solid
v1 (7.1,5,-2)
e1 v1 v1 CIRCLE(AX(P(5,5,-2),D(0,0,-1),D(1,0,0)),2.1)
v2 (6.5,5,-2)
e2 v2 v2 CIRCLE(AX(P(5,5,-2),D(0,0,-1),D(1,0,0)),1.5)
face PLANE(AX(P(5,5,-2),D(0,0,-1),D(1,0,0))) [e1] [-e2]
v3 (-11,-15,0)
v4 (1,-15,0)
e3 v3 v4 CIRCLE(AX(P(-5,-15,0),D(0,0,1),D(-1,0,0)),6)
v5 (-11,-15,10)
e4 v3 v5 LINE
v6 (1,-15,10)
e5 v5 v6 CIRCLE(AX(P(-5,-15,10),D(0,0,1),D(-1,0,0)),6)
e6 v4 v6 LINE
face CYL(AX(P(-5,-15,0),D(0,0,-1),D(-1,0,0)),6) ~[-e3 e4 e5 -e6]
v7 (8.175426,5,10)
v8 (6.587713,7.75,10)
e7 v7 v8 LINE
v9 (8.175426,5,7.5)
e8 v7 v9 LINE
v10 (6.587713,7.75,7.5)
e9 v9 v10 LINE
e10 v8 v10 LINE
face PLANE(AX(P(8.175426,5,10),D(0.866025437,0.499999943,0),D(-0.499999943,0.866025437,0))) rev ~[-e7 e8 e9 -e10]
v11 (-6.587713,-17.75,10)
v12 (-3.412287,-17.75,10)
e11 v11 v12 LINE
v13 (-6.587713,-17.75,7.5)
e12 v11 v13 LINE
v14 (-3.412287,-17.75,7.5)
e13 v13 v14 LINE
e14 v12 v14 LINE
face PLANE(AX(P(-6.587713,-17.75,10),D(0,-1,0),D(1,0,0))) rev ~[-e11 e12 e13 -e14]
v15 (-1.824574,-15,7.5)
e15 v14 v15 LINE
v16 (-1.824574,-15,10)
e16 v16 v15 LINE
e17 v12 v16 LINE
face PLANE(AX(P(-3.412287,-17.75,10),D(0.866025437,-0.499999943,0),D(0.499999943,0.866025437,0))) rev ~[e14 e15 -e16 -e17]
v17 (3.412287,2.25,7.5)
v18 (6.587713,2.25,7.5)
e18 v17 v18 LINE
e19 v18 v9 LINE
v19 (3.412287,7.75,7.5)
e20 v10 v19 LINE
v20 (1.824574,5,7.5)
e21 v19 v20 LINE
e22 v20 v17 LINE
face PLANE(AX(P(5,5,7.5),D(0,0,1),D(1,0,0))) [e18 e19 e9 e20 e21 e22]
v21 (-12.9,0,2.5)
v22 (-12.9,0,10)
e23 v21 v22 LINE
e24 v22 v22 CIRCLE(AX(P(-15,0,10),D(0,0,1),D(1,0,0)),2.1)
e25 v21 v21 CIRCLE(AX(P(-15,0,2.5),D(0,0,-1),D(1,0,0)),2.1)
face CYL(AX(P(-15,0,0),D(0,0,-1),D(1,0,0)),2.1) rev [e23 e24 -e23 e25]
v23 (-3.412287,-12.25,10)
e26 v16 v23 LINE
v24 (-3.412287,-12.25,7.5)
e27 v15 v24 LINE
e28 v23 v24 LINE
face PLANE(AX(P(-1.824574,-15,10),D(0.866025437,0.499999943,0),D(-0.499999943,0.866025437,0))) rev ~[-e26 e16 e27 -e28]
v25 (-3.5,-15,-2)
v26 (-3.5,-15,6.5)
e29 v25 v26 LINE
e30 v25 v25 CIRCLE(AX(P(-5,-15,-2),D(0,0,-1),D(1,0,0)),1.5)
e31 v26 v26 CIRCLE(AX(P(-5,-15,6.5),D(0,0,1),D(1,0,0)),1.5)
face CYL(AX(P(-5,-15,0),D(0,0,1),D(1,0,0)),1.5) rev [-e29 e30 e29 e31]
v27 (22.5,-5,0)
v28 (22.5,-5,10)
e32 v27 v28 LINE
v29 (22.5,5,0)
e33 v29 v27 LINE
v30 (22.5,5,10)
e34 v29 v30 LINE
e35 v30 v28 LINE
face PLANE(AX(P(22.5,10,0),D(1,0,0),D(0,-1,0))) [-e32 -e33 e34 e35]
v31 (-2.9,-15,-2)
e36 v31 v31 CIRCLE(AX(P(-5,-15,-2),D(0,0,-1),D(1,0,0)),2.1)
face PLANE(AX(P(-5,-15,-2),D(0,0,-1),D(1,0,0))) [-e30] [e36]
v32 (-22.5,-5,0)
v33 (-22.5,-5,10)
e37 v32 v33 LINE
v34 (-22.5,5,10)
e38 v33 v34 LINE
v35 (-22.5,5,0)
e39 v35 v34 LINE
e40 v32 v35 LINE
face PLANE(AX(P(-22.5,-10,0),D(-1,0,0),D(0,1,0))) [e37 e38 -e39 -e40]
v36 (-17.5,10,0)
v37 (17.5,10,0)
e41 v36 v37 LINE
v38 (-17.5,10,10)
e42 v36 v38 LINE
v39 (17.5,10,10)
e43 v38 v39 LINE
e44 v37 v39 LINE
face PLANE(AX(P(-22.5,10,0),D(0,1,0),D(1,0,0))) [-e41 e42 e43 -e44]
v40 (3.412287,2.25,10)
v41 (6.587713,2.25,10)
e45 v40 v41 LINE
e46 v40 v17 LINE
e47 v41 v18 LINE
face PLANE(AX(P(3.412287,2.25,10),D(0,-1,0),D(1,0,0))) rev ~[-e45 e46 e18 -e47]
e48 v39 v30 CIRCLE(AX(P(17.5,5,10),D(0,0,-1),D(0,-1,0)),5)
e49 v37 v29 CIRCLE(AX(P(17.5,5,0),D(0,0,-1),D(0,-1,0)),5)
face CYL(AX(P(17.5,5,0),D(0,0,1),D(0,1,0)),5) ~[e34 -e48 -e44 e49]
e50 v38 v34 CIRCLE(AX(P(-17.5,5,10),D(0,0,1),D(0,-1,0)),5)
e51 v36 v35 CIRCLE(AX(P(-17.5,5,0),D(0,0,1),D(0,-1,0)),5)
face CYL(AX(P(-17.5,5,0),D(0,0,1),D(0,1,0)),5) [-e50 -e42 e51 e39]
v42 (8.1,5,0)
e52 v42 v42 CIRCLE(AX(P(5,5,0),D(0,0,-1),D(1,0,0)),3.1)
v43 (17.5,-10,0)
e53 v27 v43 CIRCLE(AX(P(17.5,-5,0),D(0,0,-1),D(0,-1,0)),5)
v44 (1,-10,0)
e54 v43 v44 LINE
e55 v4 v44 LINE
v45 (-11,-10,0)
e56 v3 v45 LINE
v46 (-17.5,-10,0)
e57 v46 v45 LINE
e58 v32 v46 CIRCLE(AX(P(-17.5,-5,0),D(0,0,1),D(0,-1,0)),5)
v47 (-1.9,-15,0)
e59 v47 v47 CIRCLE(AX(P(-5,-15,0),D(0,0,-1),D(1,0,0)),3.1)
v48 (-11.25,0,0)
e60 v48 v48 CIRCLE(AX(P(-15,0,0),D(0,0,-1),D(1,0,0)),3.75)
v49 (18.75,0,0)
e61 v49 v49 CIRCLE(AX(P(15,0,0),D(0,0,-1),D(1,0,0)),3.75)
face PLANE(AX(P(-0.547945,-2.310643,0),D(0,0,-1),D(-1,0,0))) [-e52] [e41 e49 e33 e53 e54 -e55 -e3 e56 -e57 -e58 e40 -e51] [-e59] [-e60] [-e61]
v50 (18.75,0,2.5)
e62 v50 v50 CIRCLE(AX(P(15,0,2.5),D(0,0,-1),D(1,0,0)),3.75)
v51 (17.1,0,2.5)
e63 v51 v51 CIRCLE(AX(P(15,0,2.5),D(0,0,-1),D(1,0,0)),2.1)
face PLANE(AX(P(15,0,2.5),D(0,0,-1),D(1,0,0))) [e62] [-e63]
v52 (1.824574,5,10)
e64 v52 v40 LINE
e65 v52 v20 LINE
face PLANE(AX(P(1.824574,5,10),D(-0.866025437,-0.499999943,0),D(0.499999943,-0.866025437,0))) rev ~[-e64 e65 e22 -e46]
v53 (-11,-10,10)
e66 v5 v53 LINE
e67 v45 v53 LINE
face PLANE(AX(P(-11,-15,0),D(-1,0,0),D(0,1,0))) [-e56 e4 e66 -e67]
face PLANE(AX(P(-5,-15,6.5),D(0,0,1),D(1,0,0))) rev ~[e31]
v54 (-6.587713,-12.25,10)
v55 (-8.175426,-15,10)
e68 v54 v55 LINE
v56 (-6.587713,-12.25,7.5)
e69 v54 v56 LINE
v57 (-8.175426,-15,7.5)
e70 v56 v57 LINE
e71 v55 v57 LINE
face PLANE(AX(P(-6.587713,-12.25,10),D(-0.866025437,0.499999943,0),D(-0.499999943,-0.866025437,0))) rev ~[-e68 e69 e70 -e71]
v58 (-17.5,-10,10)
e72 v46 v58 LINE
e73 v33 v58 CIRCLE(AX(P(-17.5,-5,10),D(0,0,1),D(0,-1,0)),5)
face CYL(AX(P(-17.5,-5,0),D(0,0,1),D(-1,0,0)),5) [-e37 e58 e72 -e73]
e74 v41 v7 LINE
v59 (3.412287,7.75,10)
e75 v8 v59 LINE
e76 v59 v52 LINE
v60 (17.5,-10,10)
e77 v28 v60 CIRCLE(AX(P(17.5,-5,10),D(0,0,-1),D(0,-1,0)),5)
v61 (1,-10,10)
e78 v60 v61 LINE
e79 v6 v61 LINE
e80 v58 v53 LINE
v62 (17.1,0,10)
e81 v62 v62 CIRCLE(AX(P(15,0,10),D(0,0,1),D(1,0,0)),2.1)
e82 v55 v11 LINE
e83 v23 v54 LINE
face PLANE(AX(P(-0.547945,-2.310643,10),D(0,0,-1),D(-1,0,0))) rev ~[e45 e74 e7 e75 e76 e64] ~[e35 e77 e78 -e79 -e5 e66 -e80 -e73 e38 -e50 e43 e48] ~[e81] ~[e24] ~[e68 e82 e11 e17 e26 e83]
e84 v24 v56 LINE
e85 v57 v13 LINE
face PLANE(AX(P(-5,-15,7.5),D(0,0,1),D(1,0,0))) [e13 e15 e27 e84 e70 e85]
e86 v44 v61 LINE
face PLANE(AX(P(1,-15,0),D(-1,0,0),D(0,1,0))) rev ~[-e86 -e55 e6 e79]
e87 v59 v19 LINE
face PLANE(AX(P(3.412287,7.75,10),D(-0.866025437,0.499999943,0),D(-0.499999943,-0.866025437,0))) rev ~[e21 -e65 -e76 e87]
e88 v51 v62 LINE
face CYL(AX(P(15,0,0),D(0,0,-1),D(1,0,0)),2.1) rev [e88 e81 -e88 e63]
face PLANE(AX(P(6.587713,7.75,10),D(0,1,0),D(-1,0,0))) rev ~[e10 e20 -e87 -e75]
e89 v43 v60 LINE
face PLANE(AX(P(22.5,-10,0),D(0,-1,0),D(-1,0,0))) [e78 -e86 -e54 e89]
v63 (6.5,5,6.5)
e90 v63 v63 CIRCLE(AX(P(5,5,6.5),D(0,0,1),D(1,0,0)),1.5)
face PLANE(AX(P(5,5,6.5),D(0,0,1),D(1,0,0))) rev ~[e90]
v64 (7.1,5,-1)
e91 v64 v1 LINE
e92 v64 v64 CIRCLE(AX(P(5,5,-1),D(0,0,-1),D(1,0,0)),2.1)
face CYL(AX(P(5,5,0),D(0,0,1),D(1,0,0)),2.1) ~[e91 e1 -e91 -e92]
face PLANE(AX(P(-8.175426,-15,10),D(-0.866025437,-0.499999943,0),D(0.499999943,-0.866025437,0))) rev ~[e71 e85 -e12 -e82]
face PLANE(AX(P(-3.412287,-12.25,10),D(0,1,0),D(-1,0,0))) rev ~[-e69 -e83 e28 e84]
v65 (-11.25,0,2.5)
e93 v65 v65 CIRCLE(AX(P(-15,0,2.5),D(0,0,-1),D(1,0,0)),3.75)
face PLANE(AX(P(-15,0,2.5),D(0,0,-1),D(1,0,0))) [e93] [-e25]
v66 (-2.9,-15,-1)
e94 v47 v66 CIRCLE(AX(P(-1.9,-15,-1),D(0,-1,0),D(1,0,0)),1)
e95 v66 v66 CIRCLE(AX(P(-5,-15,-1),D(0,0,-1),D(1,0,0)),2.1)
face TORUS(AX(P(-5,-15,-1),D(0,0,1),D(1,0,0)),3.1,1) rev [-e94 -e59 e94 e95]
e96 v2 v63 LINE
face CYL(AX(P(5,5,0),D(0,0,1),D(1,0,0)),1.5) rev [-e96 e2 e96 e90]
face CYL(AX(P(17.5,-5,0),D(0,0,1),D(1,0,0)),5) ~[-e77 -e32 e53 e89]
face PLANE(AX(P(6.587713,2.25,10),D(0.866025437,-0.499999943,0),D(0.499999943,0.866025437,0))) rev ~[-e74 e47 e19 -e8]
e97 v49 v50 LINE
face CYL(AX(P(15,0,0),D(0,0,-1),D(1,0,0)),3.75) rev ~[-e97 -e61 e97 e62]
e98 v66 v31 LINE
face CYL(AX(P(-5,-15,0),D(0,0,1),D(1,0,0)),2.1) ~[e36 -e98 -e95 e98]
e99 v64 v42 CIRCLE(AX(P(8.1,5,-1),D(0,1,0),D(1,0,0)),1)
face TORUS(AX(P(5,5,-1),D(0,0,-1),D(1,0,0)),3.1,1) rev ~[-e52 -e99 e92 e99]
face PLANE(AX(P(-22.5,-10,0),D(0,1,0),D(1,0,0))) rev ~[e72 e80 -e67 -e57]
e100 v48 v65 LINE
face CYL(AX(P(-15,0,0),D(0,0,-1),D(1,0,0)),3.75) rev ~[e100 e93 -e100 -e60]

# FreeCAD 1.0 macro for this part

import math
import FreeCAD as App
import Part
import Sketcher
Q = App.Units.Quantity


def edges_at(feature, points):
    """Names of the edges that pass closest to the given points."""
    edges = feature.Shape.Edges
    near = lambda p: min(range(len(edges)), key=lambda i: edges[i].distToShape(Part.Vertex(*p))[0])
    return sorted({f"Edge{near(p) + 1}" for p in points})

doc = App.newDocument("Part")
params = doc.addObject("Spreadsheet::Sheet", "Params")
for row, (alias, value) in enumerate([
    ("sketch1_diameter", "3 mm"),
    ("sketch1_radius", "6 mm"),
    ("sketch1_diameter2", "4.2 mm"),
    ("sketch1_width", "45 mm"),
    ("sketch1_height", "20 mm"),
    ("pad1_length", "10 mm"),
    ("pocket1_length", "2.5 mm"),
    ("sketch3_diameter", "3 mm"),
    ("sketch3_diameter2", "4.2 mm"),
    ("pad2_length", "2 mm"),
    ("sketch4_diameter", "7.5 mm"),
    ("sketch4_diameter2", "4.2 mm"),
    ("pocket2_length", "2.5 mm"),
    ("fillet_radius", "1 mm"),
    ("fillet2_radius", "5 mm"),
    ("sketch5_diameter", "3 mm"),
    ("pad3_length", "1 mm"),
], start=1):
    params.set(f"A{row}", alias)
    params.set(f"B{row}", "=" + value)
    params.setAlias(f"B{row}", alias)

body = doc.addObject("PartDesign::Body", "Body")

# Sketch on XY plane
sketch1 = body.newObject("Sketcher::SketchObject", "Sketch")
sketch1.AttachmentSupport = (doc.getObject("XY_Plane"), [""])
sketch1.MapMode = "FlatFace"
sketch1.addGeometry([
    Part.LineSegment(App.Vector(22.5, 10, 0), App.Vector(-22.5, 10, 0)),  # 0
    Part.LineSegment(App.Vector(-22.5, 10, 0), App.Vector(-22.5, -10, 0)),  # 1
    Part.LineSegment(App.Vector(-22.5, -10, 0), App.Vector(-11, -10, 0)),  # 2
    Part.LineSegment(App.Vector(-11, -10, 0), App.Vector(-11, -15, 0)),  # 3
    Part.ArcOfCircle(Part.Circle(App.Vector(-5, -15, 0), App.Vector(0, 0, 1), 6), math.radians(180), math.radians(360)),  # 4
    Part.LineSegment(App.Vector(1, -15, 0), App.Vector(1, -10, 0)),  # 5
    Part.LineSegment(App.Vector(1, -10, 0), App.Vector(22.5, -10, 0)),  # 6
    Part.LineSegment(App.Vector(22.5, -10, 0), App.Vector(22.5, 10, 0)),  # 7
    Part.Circle(App.Vector(-5, -15, 0), App.Vector(0, 0, 1), 1.5),  # 8
    Part.Circle(App.Vector(15, 0, 0), App.Vector(0, 0, 1), 2.1),  # 9
    Part.Circle(App.Vector(5, 5, 0), App.Vector(0, 0, 1), 1.5),  # 10
    Part.Circle(App.Vector(-15, 0, 0), App.Vector(0, 0, 1), 2.1),  # 11
], False)
sketch1.addConstraint([
    Sketcher.Constraint("Coincident", 0, 2, 1, 1),
    Sketcher.Constraint("Coincident", 1, 2, 2, 1),
    Sketcher.Constraint("Coincident", 2, 2, 3, 1),
    Sketcher.Constraint("Tangent", 3, 2, 4, 1),
    Sketcher.Constraint("Tangent", 4, 2, 5, 1),
    Sketcher.Constraint("Coincident", 5, 2, 6, 1),
    Sketcher.Constraint("Coincident", 6, 2, 7, 1),
    Sketcher.Constraint("Coincident", 7, 2, 0, 1),
    Sketcher.Constraint("Horizontal", 0),
    Sketcher.Constraint("Vertical", 1),
    Sketcher.Constraint("Horizontal", 2),
    Sketcher.Constraint("Vertical", 3),
    Sketcher.Constraint("Vertical", 5),
    Sketcher.Constraint("Horizontal", 6),
    Sketcher.Constraint("Vertical", 7),
    Sketcher.Constraint("Coincident", 8, 3, 4, 3),
    Sketcher.Constraint("Equal", 8, 10),
    Sketcher.Constraint("Equal", 9, 11),
    Sketcher.Constraint("Symmetric", 9, 3, 11, 3, -1, 1),
    Sketcher.Constraint("Symmetric", 0, 2, 6, 2, -1, 1),
    Sketcher.Constraint("PointOnObject", 9, 3, -1),
    Sketcher.Constraint("Horizontal", 2, 2, 5, 2),
    Sketcher.Constraint("Diameter", 8, 3.0),
    Sketcher.Constraint("Radius", 4, 6.0),
    Sketcher.Constraint("Diameter", 9, 4.2),
    Sketcher.Constraint("DistanceX", 0, 2, 0, 1, 45.0),
    Sketcher.Constraint("DistanceY", 1, 2, 1, 1, 20.0),
    Sketcher.Constraint("DistanceY", 3, 2, 3, 1, 5.0),
    Sketcher.Constraint("DistanceX", 2, 1, 2, 2, 11.5),
    Sketcher.Constraint("DistanceX", -1, 1, 9, 3, 15.0),
    Sketcher.Constraint("DistanceX", -1, 1, 10, 3, 5.0),
    Sketcher.Constraint("DistanceY", -1, 1, 10, 3, 5.0),
])
sketch1.setExpression("Constraints[22]", "Params.sketch1_diameter")
sketch1.setExpression("Constraints[23]", "Params.sketch1_radius")
sketch1.setExpression("Constraints[24]", "Params.sketch1_diameter2")
sketch1.setExpression("Constraints[25]", "Params.sketch1_width")
sketch1.setExpression("Constraints[26]", "Params.sketch1_height")
pad1 = body.newObject("PartDesign::Pad", "Pad")
pad1.Profile = sketch1
pad1.setExpression("Length", "Params.pad1_length")

# Sketch on XY plane
sketch2 = body.newObject("Sketcher::SketchObject", "Sketch001")
sketch2.AttachmentSupport = (doc.getObject("XY_Plane"), [""])
sketch2.MapMode = "FlatFace"
sketch2.AttachmentOffset = App.Placement(App.Vector(0, 0, 10), App.Rotation())
sketch2.addGeometry([
    Part.LineSegment(App.Vector(6.587713, 2.25, 0), App.Vector(8.175426, 5, 0)),  # 0
    Part.LineSegment(App.Vector(8.175426, 5, 0), App.Vector(6.587713, 7.75, 0)),  # 1
    Part.LineSegment(App.Vector(6.587713, 7.75, 0), App.Vector(3.412287, 7.75, 0)),  # 2
    Part.LineSegment(App.Vector(3.412287, 7.75, 0), App.Vector(1.824574, 5, 0)),  # 3
    Part.LineSegment(App.Vector(1.824574, 5, 0), App.Vector(3.412287, 2.25, 0)),  # 4
    Part.LineSegment(App.Vector(3.412287, 2.25, 0), App.Vector(6.587713, 2.25, 0)),  # 5
    Part.LineSegment(App.Vector(-3.412287, -17.75, 0), App.Vector(-1.824574, -15, 0)),  # 6
    Part.LineSegment(App.Vector(-1.824574, -15, 0), App.Vector(-3.412287, -12.25, 0)),  # 7
    Part.LineSegment(App.Vector(-3.412287, -12.25, 0), App.Vector(-6.587713, -12.25, 0)),  # 8
    Part.LineSegment(App.Vector(-6.587713, -12.25, 0), App.Vector(-8.175426, -15, 0)),  # 9
    Part.LineSegment(App.Vector(-8.175426, -15, 0), App.Vector(-6.587713, -17.75, 0)),  # 10
    Part.LineSegment(App.Vector(-6.587713, -17.75, 0), App.Vector(-3.412287, -17.75, 0)),  # 11
], False)
sketch2.addConstraint([
    Sketcher.Constraint("Coincident", 0, 2, 1, 1),
    Sketcher.Constraint("Coincident", 1, 2, 2, 1),
    Sketcher.Constraint("Coincident", 2, 2, 3, 1),
    Sketcher.Constraint("Coincident", 3, 2, 4, 1),
    Sketcher.Constraint("Coincident", 4, 2, 5, 1),
    Sketcher.Constraint("Coincident", 5, 2, 0, 1),
    Sketcher.Constraint("Coincident", 6, 2, 7, 1),
    Sketcher.Constraint("Coincident", 7, 2, 8, 1),
    Sketcher.Constraint("Coincident", 8, 2, 9, 1),
    Sketcher.Constraint("Coincident", 9, 2, 10, 1),
    Sketcher.Constraint("Coincident", 10, 2, 11, 1),
    Sketcher.Constraint("Coincident", 11, 2, 6, 1),
    Sketcher.Constraint("Horizontal", 2),
    Sketcher.Constraint("Horizontal", 5),
    Sketcher.Constraint("Horizontal", 8),
    Sketcher.Constraint("Horizontal", 11),
    Sketcher.Constraint("Parallel", 0, 3),
    Sketcher.Constraint("Parallel", 1, 4),
    Sketcher.Constraint("Parallel", 3, 6),
    Sketcher.Constraint("Parallel", 4, 7),
    Sketcher.Constraint("Parallel", 6, 9),
    Sketcher.Constraint("Parallel", 7, 10),
    Sketcher.Constraint("Horizontal", 0, 2, 3, 2),
    Sketcher.Constraint("Horizontal", 6, 2, 9, 2),
    Sketcher.Constraint("Vertical", 2, 2, 4, 2),
    Sketcher.Constraint("Vertical", 1, 2, 5, 2),
    Sketcher.Constraint("Vertical", 8, 2, 10, 2),
    Sketcher.Constraint("Equal", 5, 8),
    Sketcher.Constraint("Equal", 4, 6),
    Sketcher.Constraint("Angle", 0, Q("60.000004 deg")),
    Sketcher.Constraint("DistanceY", -1, 1, 0, 2, 5.0),
    Sketcher.Constraint("DistanceY", 6, 2, -1, 1, 15.0),
    Sketcher.Constraint("DistanceX", 6, 2, 0, 2, 10.0),
    Sketcher.Constraint("DistanceY", 4, 2, 2, 2, 5.5),
    Sketcher.Constraint("DistanceX", 2, 2, 2, 1, 3.175426),
    Sketcher.Constraint("DistanceX", -1, 1, 0, 2, 8.175426),
])
pocket1 = body.newObject("PartDesign::Pocket", "Pocket")
pocket1.Profile = sketch2
pocket1.setExpression("Length", "Params.pocket1_length")

# Sketch on XY plane
sketch3 = body.newObject("Sketcher::SketchObject", "Sketch002")
sketch3.AttachmentSupport = (doc.getObject("XY_Plane"), [""])
sketch3.MapMode = "FlatFace"
sketch3.addGeometry([
    Part.Circle(App.Vector(5, 5, 0), App.Vector(0, 0, 1), 2.1),
    Part.Circle(App.Vector(5, 5, 0), App.Vector(0, 0, 1), 1.5),
    Part.Circle(App.Vector(-5, -15, 0), App.Vector(0, 0, 1), 2.1),
    Part.Circle(App.Vector(-5, -15, 0), App.Vector(0, 0, 1), 1.5),
], False)
sketch3.addConstraint([
    Sketcher.Constraint("Coincident", 1, 3, 0, 3),
    Sketcher.Constraint("Coincident", 3, 3, 2, 3),
    Sketcher.Constraint("Equal", 0, 2),
    Sketcher.Constraint("Equal", 1, 3),
    Sketcher.Constraint("Diameter", 1, 3.0),
    Sketcher.Constraint("Diameter", 0, 4.2),
    Sketcher.Constraint("DistanceX", -1, 1, 0, 3, 5.0),
    Sketcher.Constraint("DistanceY", -1, 1, 0, 3, 5.0),
    Sketcher.Constraint("DistanceX", 2, 3, -1, 1, 5.0),
    Sketcher.Constraint("DistanceY", 2, 3, -1, 1, 15.0),
])
sketch3.setExpression("Constraints[4]", "Params.sketch3_diameter")
sketch3.setExpression("Constraints[5]", "Params.sketch3_diameter2")
pad2 = body.newObject("PartDesign::Pad", "Pad001")
pad2.Profile = sketch3
pad2.setExpression("Length", "Params.pad2_length")
pad2.Reversed = True

# Sketch on XY plane
sketch4 = body.newObject("Sketcher::SketchObject", "Sketch003")
sketch4.AttachmentSupport = (doc.getObject("XY_Plane"), [""])
sketch4.MapMode = "FlatFace"
sketch4.addGeometry([
    Part.Circle(App.Vector(15, 0, 0), App.Vector(0, 0, 1), 3.75),
    Part.Circle(App.Vector(15, 0, 0), App.Vector(0, 0, 1), 2.1),
    Part.Circle(App.Vector(-15, 0, 0), App.Vector(0, 0, 1), 3.75),
    Part.Circle(App.Vector(-15, 0, 0), App.Vector(0, 0, 1), 2.1),
], False)
sketch4.addConstraint([
    Sketcher.Constraint("Coincident", 1, 3, 0, 3),
    Sketcher.Constraint("Coincident", 3, 3, 2, 3),
    Sketcher.Constraint("Equal", 0, 2),
    Sketcher.Constraint("Equal", 1, 3),
    Sketcher.Constraint("Symmetric", 0, 3, 2, 3, -1, 1),
    Sketcher.Constraint("PointOnObject", 0, 3, -1),
    Sketcher.Constraint("Diameter", 0, 7.5),
    Sketcher.Constraint("Diameter", 1, 4.2),
    Sketcher.Constraint("DistanceX", -1, 1, 0, 3, 15.0),
])
sketch4.setExpression("Constraints[6]", "Params.sketch4_diameter")
sketch4.setExpression("Constraints[7]", "Params.sketch4_diameter2")
pocket2 = body.newObject("PartDesign::Pocket", "Pocket001")
pocket2.Profile = sketch4
pocket2.setExpression("Length", "Params.pocket2_length")
pocket2.Reversed = True
doc.recompute()

fillet = body.newObject("PartDesign::Fillet", "Fillet")
fillet.Base = (pocket2, edges_at(pocket2, [(2.9, 5, 0), (-7.1, -15, 0)]))
fillet.setExpression("Radius", "Params.fillet_radius")
doc.recompute()

fillet2 = body.newObject("PartDesign::Fillet", "Fillet001")
fillet2.Base = (fillet, edges_at(fillet, [
    (22.5, 10, 5),
    (22.5, -10, 5),
    (-22.5, 10, 5),
    (-22.5, -10, 5),
]))
fillet2.setExpression("Radius", "Params.fillet2_radius")

# Sketch on XY plane
sketch5 = body.newObject("Sketcher::SketchObject", "Sketch004")
sketch5.AttachmentSupport = (doc.getObject("XY_Plane"), [""])
sketch5.MapMode = "FlatFace"
sketch5.AttachmentOffset = App.Placement(App.Vector(0, 0, 7.5), App.Rotation())
sketch5.addGeometry([
    Part.Circle(App.Vector(-5, -15, 0), App.Vector(0, 0, 1), 1.5),
    Part.Circle(App.Vector(5, 5, 0), App.Vector(0, 0, 1), 1.5),
], False)
sketch5.addConstraint([
    Sketcher.Constraint("Equal", 0, 1),
    Sketcher.Constraint("Diameter", 0, 3.0),
    Sketcher.Constraint("DistanceX", 0, 3, -1, 1, 5.0),
    Sketcher.Constraint("DistanceY", 0, 3, -1, 1, 15.0),
    Sketcher.Constraint("DistanceX", -1, 1, 1, 3, 5.0),
    Sketcher.Constraint("DistanceY", -1, 1, 1, 3, 5.0),
])
sketch5.setExpression("Constraints[1]", "Params.sketch5_diameter")
pad3 = body.newObject("PartDesign::Pad", "Pad002")
pad3.Profile = sketch5
pad3.setExpression("Length", "Params.pad3_length")
pad3.Reversed = True

doc.recompute()
